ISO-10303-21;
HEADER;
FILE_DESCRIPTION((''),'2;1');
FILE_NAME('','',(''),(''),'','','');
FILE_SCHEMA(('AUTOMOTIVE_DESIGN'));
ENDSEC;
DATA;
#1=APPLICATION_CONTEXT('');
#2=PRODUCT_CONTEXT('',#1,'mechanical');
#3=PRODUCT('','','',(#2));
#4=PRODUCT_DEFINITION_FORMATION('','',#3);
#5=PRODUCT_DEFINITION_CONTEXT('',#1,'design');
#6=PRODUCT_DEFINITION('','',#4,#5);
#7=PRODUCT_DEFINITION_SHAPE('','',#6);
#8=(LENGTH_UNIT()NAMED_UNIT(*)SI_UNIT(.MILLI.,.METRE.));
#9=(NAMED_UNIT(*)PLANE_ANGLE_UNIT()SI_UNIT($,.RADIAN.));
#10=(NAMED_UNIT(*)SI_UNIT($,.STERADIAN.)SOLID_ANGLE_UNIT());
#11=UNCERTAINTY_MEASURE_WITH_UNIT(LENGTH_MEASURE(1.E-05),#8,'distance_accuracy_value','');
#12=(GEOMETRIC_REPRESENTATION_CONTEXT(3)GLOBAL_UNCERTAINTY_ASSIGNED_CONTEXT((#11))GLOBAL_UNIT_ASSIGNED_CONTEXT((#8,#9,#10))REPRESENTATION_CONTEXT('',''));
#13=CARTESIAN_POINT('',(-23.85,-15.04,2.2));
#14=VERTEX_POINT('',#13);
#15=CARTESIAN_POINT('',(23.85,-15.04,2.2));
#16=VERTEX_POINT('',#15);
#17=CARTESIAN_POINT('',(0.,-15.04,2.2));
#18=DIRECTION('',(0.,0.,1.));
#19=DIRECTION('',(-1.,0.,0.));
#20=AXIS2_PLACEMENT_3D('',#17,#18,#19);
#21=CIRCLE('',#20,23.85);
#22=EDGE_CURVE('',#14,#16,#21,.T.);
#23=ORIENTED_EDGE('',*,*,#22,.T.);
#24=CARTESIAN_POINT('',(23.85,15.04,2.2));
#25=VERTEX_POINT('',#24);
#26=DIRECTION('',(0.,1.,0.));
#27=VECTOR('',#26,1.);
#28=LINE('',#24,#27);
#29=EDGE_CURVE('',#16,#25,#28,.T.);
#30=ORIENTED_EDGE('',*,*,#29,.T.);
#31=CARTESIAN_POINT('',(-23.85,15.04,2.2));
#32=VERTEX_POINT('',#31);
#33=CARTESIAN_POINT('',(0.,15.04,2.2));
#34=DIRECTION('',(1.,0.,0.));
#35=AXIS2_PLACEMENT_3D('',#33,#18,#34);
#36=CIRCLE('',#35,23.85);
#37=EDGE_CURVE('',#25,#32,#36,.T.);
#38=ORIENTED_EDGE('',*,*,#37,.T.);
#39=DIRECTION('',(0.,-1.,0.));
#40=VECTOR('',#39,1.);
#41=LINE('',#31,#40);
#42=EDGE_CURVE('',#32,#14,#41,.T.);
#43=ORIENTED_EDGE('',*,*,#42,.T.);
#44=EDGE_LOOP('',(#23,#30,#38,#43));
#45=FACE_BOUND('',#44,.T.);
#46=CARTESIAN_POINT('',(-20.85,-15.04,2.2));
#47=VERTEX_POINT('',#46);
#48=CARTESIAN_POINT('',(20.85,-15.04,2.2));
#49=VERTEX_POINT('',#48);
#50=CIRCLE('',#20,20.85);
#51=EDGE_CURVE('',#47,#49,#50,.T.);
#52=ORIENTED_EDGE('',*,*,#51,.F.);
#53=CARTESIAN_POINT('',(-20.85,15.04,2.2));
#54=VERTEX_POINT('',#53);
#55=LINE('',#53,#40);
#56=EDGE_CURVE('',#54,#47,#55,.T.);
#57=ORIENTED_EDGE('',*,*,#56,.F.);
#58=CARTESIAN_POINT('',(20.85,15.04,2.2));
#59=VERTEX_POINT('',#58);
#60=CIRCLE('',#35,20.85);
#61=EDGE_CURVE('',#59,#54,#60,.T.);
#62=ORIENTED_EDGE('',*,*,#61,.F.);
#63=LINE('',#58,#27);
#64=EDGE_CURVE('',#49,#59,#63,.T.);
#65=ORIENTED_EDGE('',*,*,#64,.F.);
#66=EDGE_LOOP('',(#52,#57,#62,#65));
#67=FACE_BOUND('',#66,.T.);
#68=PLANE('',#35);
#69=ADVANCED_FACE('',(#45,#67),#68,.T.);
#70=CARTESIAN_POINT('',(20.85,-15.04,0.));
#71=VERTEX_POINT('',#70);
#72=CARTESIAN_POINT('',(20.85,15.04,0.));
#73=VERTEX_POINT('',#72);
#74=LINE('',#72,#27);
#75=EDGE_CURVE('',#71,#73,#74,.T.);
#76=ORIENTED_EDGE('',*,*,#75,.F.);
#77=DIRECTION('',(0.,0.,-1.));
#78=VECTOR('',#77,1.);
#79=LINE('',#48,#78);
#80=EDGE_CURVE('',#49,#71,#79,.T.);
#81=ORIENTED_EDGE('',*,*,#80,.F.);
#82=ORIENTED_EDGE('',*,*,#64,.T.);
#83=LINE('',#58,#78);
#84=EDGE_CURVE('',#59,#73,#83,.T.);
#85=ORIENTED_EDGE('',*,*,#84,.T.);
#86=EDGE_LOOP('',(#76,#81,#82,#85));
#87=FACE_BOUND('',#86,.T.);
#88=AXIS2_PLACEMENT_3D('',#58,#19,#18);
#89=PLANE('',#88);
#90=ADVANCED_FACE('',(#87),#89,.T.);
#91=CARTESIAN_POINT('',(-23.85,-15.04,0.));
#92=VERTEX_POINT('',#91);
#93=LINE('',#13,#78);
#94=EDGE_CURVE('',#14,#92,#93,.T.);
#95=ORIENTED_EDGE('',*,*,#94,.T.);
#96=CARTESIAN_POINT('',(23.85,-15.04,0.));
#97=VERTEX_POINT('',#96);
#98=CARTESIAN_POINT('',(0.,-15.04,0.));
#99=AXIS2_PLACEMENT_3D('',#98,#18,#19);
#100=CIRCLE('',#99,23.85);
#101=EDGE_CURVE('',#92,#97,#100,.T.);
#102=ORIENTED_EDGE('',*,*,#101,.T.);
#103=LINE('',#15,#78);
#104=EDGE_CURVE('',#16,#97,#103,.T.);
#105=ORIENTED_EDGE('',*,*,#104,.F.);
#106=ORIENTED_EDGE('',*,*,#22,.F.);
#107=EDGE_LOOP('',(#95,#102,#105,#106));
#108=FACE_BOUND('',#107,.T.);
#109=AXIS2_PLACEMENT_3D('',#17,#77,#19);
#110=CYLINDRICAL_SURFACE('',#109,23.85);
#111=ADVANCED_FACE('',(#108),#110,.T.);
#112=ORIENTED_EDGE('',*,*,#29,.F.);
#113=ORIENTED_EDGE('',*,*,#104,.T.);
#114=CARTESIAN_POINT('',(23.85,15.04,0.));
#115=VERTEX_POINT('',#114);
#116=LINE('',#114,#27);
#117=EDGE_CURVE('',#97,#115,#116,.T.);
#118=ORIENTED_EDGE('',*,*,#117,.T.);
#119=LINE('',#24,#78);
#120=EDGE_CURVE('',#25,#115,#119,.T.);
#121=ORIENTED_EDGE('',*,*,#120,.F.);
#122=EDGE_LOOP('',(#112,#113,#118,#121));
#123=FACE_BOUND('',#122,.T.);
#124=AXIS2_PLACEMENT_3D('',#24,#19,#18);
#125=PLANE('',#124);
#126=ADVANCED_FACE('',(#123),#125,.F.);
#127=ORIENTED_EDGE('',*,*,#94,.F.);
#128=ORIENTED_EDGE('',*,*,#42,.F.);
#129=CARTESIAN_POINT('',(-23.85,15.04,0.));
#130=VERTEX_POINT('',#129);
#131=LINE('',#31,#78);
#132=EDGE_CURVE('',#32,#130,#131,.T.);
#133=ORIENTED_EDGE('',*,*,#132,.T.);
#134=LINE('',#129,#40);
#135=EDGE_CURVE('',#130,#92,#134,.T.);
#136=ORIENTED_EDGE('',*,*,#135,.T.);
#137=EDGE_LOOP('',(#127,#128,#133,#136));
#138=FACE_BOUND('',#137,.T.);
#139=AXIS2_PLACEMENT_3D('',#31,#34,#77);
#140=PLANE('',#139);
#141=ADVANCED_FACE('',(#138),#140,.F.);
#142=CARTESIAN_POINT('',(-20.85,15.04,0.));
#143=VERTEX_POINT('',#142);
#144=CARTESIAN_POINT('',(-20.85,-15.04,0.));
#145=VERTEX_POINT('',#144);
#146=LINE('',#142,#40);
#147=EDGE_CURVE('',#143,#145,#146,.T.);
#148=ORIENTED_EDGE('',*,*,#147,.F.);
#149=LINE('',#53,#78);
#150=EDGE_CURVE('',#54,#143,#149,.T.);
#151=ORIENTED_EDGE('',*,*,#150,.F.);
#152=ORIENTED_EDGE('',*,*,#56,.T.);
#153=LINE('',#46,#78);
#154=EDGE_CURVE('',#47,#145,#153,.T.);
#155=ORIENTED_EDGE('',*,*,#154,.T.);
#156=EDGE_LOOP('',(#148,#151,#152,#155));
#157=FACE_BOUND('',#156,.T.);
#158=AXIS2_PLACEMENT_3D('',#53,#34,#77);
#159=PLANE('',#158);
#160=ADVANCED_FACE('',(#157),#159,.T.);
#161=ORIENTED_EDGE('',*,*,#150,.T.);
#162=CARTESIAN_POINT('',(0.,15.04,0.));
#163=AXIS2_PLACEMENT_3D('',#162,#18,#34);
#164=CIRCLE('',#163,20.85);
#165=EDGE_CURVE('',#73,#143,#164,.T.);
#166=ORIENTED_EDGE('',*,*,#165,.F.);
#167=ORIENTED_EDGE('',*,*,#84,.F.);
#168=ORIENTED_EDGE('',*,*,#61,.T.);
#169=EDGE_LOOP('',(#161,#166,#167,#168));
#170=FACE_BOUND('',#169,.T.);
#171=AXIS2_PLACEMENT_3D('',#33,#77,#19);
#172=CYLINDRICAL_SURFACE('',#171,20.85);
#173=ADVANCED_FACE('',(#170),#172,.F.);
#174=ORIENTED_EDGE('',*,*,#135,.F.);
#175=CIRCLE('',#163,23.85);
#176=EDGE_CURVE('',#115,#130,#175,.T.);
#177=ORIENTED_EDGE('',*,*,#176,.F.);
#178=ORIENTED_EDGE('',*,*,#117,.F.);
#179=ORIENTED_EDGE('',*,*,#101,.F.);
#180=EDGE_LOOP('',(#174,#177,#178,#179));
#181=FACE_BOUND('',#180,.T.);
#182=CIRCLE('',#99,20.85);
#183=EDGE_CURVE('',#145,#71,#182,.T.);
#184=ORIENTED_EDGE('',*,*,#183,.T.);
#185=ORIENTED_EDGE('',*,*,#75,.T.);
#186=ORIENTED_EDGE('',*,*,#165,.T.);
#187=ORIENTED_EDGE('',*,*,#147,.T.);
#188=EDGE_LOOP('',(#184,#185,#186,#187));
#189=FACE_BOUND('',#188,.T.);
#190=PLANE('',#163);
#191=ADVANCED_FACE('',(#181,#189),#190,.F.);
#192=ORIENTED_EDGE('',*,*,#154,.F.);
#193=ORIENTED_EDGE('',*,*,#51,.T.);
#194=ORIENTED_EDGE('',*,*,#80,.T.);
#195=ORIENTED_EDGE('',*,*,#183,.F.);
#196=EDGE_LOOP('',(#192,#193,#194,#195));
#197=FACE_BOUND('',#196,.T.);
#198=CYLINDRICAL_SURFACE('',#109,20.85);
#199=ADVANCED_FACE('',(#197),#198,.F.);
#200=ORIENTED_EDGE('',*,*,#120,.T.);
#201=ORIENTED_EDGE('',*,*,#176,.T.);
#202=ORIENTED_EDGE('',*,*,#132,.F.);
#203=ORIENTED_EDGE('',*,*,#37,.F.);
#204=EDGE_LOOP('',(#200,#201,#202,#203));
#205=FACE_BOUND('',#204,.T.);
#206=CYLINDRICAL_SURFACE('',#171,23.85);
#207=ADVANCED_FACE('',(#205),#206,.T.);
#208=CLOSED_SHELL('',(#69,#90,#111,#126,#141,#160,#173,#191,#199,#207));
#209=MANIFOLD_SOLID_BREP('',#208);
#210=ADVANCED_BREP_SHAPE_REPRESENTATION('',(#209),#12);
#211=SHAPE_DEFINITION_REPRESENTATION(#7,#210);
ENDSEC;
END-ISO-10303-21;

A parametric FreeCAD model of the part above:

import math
import FreeCAD as App
import Part
import Sketcher

doc = App.newDocument("Part")
params = doc.addObject("Spreadsheet::Sheet", "Params")
for row, (alias, value) in enumerate([
    ("sketch1_radius", "23.85 mm"),
    ("sketch1_radius2", "20.85 mm"),
    ("sketch1_height", "30.08 mm"),
    ("pad1_length", "2.2 mm"),
], start=1):
    params.set(f"A{row}", alias)
    params.set(f"B{row}", "=" + value)
    params.setAlias(f"B{row}", alias)

body = doc.addObject("PartDesign::Body", "Body")

# Sketch on XY plane
sketch1 = doc.addObject("Sketcher::SketchObject", "Sketch")
body.addObject(sketch1)
sketch1.AttachmentSupport = (doc.XY_Plane, [""])
sketch1.MapMode = "FlatFace"
sketch1.addGeometry([
    Part.LineSegment(App.Vector(-24, 15, 0), App.Vector(-24, -15, 0)),  # 0
    Part.ArcOfCircle(Part.Circle(App.Vector(0, -15, 0), App.Vector(0, 0, 1), 24), math.radians(180), math.radians(360)),  # 1
    Part.LineSegment(App.Vector(24, -15, 0), App.Vector(24, 15, 0)),  # 2
    Part.ArcOfCircle(Part.Circle(App.Vector(0, 15, 0), App.Vector(0, 0, 1), 24), math.radians(0), math.radians(180)),  # 3
    Part.LineSegment(App.Vector(-21, -15, 0), App.Vector(-21, 15, 0)),  # 4
    Part.ArcOfCircle(Part.Circle(App.Vector(0, 15, 0), App.Vector(0, 0, 1), 21), math.radians(0), math.radians(180)),  # 5
    Part.LineSegment(App.Vector(21, 15, 0), App.Vector(21, -15, 0)),  # 6
    Part.ArcOfCircle(Part.Circle(App.Vector(0, -15, 0), App.Vector(0, 0, 1), 21), math.radians(180), math.radians(360)),  # 7
], False)
sketch1.addConstraint([
    Sketcher.Constraint("Tangent", 0, 2, 1, 1),
    Sketcher.Constraint("Tangent", 1, 2, 2, 1),
    Sketcher.Constraint("Tangent", 2, 2, 3, 1),
    Sketcher.Constraint("Tangent", 3, 2, 0, 1),
    Sketcher.Constraint("Tangent", 4, 2, 5, 2),
    Sketcher.Constraint("Tangent", 5, 1, 6, 1),
    Sketcher.Constraint("Tangent", 6, 2, 7, 2),
    Sketcher.Constraint("Tangent", 7, 1, 4, 1),
    Sketcher.Constraint("Vertical", 0),
    Sketcher.Constraint("Vertical", 2),
    Sketcher.Constraint("Vertical", 4),
    Sketcher.Constraint("Vertical", 6),
    Sketcher.Constraint("Coincident", 5, 3, 3, 3),
    Sketcher.Constraint("Symmetric", 1, 3, 3, 3, -1, 1),
    Sketcher.Constraint("Horizontal", 7, 3, 0, 2),
    Sketcher.Constraint("Radius", 1, 23.85),
    Sketcher.Constraint("Radius", 5, 20.85),
    Sketcher.Constraint("DistanceY", 0, 2, 0, 1, 30.08),
])
sketch1.setExpression("Constraints[15]", "Params.sketch1_radius")
sketch1.setExpression("Constraints[16]", "Params.sketch1_radius2")
sketch1.setExpression("Constraints[17]", "Params.sketch1_height")
pad1 = doc.addObject("PartDesign::Pad", "Pad")
body.addObject(pad1)
pad1.Profile = sketch1
pad1.setExpression("Length", "Params.pad1_length")

doc.recompute()
